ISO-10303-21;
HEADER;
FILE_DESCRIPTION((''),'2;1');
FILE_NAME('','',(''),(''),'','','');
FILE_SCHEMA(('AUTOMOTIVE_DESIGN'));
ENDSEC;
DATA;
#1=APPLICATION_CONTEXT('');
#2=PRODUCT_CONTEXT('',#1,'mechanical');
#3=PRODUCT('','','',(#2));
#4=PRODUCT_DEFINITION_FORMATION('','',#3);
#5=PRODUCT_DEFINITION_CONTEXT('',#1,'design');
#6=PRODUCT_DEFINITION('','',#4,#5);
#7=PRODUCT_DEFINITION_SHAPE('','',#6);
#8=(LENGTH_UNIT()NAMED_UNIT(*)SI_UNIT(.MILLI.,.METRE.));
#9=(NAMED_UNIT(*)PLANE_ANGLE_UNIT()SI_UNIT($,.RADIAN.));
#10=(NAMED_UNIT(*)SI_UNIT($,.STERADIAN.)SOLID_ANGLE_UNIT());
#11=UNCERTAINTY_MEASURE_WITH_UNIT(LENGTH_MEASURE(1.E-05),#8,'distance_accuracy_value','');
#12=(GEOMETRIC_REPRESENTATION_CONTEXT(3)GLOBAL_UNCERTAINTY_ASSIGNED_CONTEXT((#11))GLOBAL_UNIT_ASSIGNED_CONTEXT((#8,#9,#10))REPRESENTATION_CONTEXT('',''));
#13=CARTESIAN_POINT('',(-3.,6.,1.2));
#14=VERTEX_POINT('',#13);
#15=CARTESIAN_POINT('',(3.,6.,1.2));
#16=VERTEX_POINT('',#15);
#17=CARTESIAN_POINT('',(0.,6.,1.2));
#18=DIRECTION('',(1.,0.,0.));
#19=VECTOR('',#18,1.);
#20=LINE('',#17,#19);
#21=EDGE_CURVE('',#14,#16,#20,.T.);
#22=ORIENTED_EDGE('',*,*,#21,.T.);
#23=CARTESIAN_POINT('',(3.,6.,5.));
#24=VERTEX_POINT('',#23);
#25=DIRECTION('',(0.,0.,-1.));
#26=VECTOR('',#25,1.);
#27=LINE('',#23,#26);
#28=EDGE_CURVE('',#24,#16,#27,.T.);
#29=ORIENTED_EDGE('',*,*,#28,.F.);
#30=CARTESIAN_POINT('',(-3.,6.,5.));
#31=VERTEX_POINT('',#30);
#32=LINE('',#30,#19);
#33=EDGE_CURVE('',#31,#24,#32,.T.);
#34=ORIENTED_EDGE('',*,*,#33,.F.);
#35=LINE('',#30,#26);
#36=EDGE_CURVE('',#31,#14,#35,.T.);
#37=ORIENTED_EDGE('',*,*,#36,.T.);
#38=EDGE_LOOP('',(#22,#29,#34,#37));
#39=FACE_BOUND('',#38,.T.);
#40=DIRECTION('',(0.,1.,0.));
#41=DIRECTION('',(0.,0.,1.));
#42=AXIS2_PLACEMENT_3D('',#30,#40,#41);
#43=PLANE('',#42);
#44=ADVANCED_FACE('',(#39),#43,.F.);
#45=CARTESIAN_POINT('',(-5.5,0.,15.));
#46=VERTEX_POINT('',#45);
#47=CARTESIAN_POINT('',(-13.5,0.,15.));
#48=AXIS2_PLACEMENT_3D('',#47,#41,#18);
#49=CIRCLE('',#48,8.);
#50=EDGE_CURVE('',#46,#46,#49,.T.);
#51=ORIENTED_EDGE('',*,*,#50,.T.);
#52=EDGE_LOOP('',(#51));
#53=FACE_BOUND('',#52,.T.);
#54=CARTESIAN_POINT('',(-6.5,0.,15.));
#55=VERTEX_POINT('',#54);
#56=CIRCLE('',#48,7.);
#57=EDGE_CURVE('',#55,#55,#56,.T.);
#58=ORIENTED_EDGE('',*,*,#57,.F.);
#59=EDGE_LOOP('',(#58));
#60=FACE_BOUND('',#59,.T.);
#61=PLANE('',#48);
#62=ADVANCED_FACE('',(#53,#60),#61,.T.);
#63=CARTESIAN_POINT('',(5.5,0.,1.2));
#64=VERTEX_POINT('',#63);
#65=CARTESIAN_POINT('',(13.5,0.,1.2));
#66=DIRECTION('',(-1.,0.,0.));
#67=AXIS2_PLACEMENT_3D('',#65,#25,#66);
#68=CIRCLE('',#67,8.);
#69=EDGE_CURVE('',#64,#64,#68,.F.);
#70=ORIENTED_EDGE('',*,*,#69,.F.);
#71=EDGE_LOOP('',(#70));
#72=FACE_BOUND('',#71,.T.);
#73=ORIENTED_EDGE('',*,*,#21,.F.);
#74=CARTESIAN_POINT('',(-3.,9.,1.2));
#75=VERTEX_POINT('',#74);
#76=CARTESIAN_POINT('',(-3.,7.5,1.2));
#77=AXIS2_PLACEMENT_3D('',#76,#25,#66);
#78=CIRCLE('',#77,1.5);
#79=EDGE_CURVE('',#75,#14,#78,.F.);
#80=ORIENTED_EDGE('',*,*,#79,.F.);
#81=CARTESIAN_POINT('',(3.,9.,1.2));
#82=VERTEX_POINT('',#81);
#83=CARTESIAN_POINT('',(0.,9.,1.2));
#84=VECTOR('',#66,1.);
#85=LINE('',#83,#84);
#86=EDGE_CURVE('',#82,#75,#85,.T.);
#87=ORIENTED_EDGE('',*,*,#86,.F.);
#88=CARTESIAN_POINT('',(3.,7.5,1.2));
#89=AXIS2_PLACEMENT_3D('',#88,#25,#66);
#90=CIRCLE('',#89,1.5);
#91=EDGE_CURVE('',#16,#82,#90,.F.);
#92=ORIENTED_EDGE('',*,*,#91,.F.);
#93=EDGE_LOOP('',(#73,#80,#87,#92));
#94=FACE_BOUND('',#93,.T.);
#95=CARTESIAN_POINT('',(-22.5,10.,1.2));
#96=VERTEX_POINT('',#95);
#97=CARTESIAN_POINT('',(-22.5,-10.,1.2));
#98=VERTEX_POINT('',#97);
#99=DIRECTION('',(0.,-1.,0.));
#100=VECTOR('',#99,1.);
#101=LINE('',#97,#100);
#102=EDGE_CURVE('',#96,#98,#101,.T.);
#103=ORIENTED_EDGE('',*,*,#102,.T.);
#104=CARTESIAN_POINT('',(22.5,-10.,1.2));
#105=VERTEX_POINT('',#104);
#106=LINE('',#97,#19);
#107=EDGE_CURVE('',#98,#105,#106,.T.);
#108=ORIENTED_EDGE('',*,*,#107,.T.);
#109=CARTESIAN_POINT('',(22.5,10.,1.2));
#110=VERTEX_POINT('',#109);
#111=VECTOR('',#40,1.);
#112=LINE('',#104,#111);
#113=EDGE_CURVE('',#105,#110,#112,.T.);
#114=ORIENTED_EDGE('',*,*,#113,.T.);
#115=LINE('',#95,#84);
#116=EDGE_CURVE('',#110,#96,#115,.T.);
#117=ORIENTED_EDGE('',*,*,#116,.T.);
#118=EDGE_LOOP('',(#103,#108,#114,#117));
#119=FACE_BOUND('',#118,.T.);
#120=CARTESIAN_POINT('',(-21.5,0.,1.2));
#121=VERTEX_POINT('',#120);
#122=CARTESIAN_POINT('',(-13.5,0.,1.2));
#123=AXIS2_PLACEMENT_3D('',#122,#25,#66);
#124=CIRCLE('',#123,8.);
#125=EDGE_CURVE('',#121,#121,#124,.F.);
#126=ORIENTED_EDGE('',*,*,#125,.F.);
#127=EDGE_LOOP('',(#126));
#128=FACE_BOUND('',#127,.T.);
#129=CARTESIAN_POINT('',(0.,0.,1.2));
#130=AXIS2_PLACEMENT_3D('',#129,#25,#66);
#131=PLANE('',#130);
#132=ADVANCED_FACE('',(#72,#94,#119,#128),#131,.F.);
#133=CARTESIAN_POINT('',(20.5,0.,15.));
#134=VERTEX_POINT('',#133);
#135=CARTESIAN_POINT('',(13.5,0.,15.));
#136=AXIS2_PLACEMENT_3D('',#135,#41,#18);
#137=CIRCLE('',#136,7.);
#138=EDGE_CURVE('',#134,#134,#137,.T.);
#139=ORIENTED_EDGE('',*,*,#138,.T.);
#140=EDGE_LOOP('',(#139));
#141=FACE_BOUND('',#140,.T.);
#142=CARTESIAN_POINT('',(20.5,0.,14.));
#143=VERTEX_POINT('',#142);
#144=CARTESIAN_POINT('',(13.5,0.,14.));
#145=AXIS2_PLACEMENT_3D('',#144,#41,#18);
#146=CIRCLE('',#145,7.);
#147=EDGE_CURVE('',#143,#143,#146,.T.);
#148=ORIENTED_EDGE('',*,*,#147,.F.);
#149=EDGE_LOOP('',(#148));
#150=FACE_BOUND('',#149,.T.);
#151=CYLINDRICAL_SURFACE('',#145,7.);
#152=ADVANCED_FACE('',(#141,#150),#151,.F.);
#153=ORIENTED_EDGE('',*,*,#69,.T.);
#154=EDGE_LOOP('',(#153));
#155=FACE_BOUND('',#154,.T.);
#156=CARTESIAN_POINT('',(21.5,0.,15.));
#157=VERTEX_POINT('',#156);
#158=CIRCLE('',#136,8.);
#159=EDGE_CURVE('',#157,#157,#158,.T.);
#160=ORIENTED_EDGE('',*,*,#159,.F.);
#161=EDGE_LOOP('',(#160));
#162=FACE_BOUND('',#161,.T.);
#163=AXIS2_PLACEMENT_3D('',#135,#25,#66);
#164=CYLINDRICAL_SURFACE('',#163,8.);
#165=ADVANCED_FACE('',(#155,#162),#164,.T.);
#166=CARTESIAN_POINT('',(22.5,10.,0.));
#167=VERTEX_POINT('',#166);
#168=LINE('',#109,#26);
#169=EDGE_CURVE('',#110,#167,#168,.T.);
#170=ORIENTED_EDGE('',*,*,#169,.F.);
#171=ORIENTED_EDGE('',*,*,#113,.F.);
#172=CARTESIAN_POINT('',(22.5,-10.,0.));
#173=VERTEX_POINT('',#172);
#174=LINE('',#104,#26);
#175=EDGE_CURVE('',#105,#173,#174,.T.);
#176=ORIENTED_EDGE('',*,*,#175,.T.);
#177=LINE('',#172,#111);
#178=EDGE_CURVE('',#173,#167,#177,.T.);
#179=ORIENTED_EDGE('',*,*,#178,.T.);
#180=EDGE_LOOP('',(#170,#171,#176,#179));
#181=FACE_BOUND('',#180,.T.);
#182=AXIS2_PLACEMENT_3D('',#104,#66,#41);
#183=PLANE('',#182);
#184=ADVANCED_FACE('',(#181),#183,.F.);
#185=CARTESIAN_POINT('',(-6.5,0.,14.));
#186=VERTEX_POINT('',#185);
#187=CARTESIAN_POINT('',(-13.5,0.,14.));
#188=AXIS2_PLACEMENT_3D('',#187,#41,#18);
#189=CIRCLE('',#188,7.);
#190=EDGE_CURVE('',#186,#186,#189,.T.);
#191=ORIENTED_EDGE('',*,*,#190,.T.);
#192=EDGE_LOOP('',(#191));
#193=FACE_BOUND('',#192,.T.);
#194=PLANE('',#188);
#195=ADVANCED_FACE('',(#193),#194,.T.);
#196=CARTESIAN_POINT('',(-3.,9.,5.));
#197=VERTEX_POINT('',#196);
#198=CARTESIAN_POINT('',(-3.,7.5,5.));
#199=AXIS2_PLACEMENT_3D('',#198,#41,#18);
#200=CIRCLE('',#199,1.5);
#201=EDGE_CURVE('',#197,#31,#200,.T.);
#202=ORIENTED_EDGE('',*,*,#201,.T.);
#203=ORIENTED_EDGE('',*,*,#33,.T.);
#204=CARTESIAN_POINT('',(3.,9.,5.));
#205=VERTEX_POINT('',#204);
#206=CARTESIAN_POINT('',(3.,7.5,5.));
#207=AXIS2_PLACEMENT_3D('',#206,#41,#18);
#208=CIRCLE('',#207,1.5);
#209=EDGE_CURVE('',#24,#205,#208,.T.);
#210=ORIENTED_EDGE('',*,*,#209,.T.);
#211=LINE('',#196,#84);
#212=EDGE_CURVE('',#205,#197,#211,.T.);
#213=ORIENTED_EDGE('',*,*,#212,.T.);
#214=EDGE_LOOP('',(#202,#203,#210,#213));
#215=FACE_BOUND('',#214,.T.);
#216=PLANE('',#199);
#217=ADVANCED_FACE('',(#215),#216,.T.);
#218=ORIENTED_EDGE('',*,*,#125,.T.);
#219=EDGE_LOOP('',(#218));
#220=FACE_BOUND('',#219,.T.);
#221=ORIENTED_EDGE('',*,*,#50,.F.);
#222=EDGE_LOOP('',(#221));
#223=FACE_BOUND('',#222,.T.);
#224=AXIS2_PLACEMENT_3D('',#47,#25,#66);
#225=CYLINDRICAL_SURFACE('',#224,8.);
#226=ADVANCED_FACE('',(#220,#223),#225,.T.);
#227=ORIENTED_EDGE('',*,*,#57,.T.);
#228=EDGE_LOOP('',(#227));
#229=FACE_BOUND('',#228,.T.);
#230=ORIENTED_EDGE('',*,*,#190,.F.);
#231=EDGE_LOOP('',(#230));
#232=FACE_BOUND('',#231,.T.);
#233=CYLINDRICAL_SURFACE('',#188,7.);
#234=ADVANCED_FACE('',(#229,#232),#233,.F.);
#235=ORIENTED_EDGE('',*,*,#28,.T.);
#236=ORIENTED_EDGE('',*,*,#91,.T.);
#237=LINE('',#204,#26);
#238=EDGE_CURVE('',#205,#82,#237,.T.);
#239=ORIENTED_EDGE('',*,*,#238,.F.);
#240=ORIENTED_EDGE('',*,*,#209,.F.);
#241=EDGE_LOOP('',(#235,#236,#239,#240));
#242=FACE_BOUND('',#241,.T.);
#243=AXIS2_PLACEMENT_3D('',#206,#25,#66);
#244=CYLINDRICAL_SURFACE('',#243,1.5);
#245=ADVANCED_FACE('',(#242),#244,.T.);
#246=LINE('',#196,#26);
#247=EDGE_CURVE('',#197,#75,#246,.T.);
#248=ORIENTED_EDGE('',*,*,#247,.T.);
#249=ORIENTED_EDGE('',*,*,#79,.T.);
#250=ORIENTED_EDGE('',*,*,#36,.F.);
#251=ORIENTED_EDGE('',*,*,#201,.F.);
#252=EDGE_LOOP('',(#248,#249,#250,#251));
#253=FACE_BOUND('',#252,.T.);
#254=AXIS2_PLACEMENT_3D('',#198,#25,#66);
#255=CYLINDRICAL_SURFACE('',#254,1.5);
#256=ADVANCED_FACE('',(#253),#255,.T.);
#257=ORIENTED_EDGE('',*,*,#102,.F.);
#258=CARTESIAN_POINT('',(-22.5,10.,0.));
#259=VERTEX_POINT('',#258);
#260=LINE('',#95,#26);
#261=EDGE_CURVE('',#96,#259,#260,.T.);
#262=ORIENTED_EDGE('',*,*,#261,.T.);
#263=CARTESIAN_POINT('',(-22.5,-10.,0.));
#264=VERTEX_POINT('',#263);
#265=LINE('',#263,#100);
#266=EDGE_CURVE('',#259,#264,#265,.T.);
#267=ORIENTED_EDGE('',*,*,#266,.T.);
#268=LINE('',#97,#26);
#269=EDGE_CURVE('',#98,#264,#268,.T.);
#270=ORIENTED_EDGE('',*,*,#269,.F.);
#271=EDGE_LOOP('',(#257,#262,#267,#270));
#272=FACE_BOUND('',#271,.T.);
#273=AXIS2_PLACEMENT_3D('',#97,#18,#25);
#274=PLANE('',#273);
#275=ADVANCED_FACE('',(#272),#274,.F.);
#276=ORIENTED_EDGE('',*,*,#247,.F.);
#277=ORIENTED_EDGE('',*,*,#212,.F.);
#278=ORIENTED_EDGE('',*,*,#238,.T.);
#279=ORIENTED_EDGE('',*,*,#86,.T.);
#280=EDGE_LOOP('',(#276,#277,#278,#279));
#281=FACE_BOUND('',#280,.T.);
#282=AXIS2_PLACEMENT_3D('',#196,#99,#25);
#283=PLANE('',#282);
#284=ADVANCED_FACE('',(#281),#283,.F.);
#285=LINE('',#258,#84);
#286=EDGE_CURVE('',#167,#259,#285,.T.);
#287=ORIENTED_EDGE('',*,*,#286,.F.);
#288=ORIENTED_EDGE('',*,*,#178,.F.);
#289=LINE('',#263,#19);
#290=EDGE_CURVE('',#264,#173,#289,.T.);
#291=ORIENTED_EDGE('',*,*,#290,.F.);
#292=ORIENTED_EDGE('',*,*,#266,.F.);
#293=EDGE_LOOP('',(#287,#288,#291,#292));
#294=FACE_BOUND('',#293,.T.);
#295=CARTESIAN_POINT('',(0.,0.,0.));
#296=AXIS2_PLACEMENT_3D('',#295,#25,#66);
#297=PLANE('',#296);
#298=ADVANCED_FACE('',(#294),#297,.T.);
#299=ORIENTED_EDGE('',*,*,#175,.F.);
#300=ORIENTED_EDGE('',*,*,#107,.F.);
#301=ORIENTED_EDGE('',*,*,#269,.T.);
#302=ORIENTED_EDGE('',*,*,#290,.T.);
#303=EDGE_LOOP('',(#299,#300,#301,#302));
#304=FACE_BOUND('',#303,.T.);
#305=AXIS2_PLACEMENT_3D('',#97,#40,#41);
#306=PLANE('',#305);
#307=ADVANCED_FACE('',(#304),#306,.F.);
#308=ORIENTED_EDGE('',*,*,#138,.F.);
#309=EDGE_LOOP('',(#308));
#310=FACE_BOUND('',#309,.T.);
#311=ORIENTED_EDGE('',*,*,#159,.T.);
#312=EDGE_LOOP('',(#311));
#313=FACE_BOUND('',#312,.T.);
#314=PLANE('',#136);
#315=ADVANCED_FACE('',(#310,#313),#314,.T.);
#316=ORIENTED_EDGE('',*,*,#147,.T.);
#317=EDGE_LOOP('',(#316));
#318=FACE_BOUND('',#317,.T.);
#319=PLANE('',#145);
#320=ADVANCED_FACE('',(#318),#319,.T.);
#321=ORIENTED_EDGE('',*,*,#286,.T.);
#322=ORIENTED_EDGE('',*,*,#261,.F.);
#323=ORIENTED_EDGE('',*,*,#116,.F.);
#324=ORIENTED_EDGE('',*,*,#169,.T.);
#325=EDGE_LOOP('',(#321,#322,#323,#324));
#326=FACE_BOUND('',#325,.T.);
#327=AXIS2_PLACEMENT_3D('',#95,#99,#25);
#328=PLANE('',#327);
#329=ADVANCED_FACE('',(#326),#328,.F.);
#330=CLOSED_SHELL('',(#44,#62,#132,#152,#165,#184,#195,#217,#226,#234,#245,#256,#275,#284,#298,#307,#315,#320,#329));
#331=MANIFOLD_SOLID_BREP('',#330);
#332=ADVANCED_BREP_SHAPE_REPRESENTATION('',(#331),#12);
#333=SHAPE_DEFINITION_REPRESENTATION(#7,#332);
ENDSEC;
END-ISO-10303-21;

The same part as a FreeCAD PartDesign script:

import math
import FreeCAD as App
import Part
import Sketcher
from FreeCAD import Vector
Q = App.Units.Quantity

doc = App.newDocument("Part")
body = doc.addObject("PartDesign::Body", "Body")

# Sketch on XY plane
sketch1 = body.newObject("Sketcher::SketchObject", "Sketch")
sketch1.AttachmentSupport = (doc.getObject("XY_Plane"), [""])
sketch1.MapMode = "FlatFace"
sketch1.addGeometry(Part.LineSegment(Vector(-22, 10, 0), Vector(-22, -10, 0)), False)
sketch1.addGeometry(Part.LineSegment(Vector(-22, -10, 0), Vector(22, -10, 0)), False)
sketch1.addGeometry(Part.LineSegment(Vector(22, -10, 0), Vector(22, 10, 0)), False)
sketch1.addGeometry(Part.LineSegment(Vector(22, 10, 0), Vector(-22, 10, 0)), False)
sketch1.addConstraint(Sketcher.Constraint("Coincident", 0, 2, 1, 1))
sketch1.addConstraint(Sketcher.Constraint("Coincident", 1, 2, 2, 1))
sketch1.addConstraint(Sketcher.Constraint("Coincident", 2, 2, 3, 1))
sketch1.addConstraint(Sketcher.Constraint("Coincident", 3, 2, 0, 1))
sketch1.addConstraint(Sketcher.Constraint("Vertical", 0))
sketch1.addConstraint(Sketcher.Constraint("Horizontal", 1))
sketch1.addConstraint(Sketcher.Constraint("Vertical", 2))
sketch1.addConstraint(Sketcher.Constraint("Horizontal", 3))
sketch1.addConstraint(Sketcher.Constraint("Symmetric", 0, 2, 2, 2, -1, 1))
sketch1.addConstraint(Sketcher.Constraint("DistanceX", 1, 1, 1, 2, Q("45 mm")))
sketch1.addConstraint(Sketcher.Constraint("DistanceY", 0, 2, 0, 1, Q("20 mm")))
pad1 = body.newObject("PartDesign::Pad", "Pad")
pad1.Profile = sketch1
pad1.Length = 1.2

# Sketch on XY plane
sketch2 = body.newObject("Sketcher::SketchObject", "Sketch001")
sketch2.AttachmentSupport = (doc.getObject("XY_Plane"), [""])
sketch2.MapMode = "FlatFace"
sketch2.addGeometry(Part.Circle(Vector(-14, 0, 0), Vector(0, 0, 1), 8), False)
sketch2.addGeometry(Part.Circle(Vector(14, 0, 0), Vector(0, 0, 1), 8), False)
sketch2.addConstraint(Sketcher.Constraint("Equal", 0, 1))
sketch2.addConstraint(Sketcher.Constraint("Symmetric", 0, 3, 1, 3, -1, 1))
sketch2.addConstraint(Sketcher.Constraint("PointOnObject", 0, 3, -1))
sketch2.addConstraint(Sketcher.Constraint("Diameter", 0, Q("16 mm")))
sketch2.addConstraint(Sketcher.Constraint("DistanceX", 0, 3, 1, 3, Q("27 mm")))
pad2 = body.newObject("PartDesign::Pad", "Pad001")
pad2.Profile = sketch2
pad2.Length = 15

# Sketch on XY plane
sketch3 = body.newObject("Sketcher::SketchObject", "Sketch002")
sketch3.AttachmentSupport = (doc.getObject("XY_Plane"), [""])
sketch3.MapMode = "FlatFace"
sketch3.addGeometry(Part.LineSegment(Vector(3, 9, 0), Vector(-3, 9, 0)), False)
sketch3.addGeometry(Part.ArcOfCircle(Part.Circle(Vector(-3, 7.5, 0), Vector(0, 0, 1), 1.5), math.radians(90), math.radians(270)), False)
sketch3.addGeometry(Part.LineSegment(Vector(-3, 6, 0), Vector(3, 6, 0)), False)
sketch3.addGeometry(Part.ArcOfCircle(Part.Circle(Vector(3, 7.5, 0), Vector(0, 0, 1), 1.5), math.radians(-90), math.radians(90)), False)
sketch3.addConstraint(Sketcher.Constraint("Tangent", 0, 2, 1, 1))
sketch3.addConstraint(Sketcher.Constraint("Tangent", 1, 2, 2, 1))
sketch3.addConstraint(Sketcher.Constraint("Tangent", 2, 2, 3, 1))
sketch3.addConstraint(Sketcher.Constraint("Tangent", 3, 2, 0, 1))
sketch3.addConstraint(Sketcher.Constraint("Horizontal", 0))
sketch3.addConstraint(Sketcher.Constraint("Horizontal", 2))
sketch3.addConstraint(Sketcher.Constraint("Radius", 1, Q("1.5 mm")))
sketch3.addConstraint(Sketcher.Constraint("DistanceX", 0, 2, 0, 1, Q("6 mm")))
sketch3.addConstraint(Sketcher.Constraint("DistanceX", 1, 3, -1, 1, Q("3 mm")))
sketch3.addConstraint(Sketcher.Constraint("DistanceY", -1, 1, 0, 2, Q("9 mm")))
pad3 = body.newObject("PartDesign::Pad", "Pad002")
pad3.Profile = sketch3
pad3.Length = 5

# Sketch on XY plane
sketch4 = body.newObject("Sketcher::SketchObject", "Sketch003")
sketch4.AttachmentSupport = (doc.getObject("XY_Plane"), [""])
sketch4.MapMode = "FlatFace"
sketch4.AttachmentOffset = App.Placement(Vector(0, 0, 15), App.Rotation())
sketch4.addGeometry(Part.Circle(Vector(-14, 0, 0), Vector(0, 0, 1), 7), False)
sketch4.addGeometry(Part.Circle(Vector(14, 0, 0), Vector(0, 0, 1), 7), False)
sketch4.addConstraint(Sketcher.Constraint("Equal", 0, 1))
sketch4.addConstraint(Sketcher.Constraint("Symmetric", 0, 3, 1, 3, -1, 1))
sketch4.addConstraint(Sketcher.Constraint("PointOnObject", 0, 3, -1))
sketch4.addConstraint(Sketcher.Constraint("Diameter", 0, Q("14 mm")))
sketch4.addConstraint(Sketcher.Constraint("DistanceX", 0, 3, 1, 3, Q("27 mm")))
pocket1 = body.newObject("PartDesign::Pocket", "Pocket")
pocket1.Profile = sketch4
pocket1.Length = 1

doc.recompute()
